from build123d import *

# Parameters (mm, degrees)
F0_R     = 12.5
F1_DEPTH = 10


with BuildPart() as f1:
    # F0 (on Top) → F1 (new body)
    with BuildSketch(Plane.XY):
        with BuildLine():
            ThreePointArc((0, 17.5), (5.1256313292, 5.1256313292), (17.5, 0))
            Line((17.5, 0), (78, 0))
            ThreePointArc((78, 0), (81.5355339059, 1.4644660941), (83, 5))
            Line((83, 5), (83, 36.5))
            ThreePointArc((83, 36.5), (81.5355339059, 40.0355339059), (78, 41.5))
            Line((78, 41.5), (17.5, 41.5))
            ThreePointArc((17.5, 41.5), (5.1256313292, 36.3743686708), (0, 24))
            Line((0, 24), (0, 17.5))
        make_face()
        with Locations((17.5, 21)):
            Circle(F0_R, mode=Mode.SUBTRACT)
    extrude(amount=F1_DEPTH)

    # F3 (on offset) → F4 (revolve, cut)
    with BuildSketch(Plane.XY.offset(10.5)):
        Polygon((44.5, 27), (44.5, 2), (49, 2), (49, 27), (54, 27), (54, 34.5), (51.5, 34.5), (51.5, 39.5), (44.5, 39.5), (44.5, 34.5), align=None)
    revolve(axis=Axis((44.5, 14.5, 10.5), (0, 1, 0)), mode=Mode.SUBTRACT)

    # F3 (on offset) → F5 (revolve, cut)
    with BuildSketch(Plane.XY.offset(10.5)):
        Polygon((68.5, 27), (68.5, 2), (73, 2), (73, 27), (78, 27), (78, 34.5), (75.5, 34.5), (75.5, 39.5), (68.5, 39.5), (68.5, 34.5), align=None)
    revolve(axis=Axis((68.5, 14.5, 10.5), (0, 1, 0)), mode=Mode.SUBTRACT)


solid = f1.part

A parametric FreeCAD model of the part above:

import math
import FreeCAD as App
import Part
import Sketcher
from FreeCAD import Vector
Q = App.Units.Quantity


def add_polygon(sketch, points):
    """Adds a closed chain of lines whose ends are joined by coincident constraints."""
    first, n = sketch.GeometryCount, len(points)
    for a, b in zip(points, points[1:] + points[:1]):
        sketch.addGeometry(Part.LineSegment(App.Vector(*a, 0), App.Vector(*b, 0)), False)
    for i in range(n):
        sketch.addConstraint(Sketcher.Constraint("Coincident", first + i, 2, first + (i + 1) % n, 1))

doc = App.newDocument("Part")
params = doc.addObject("Spreadsheet::Sheet", "Params")
for row, (alias, value) in enumerate([
    ("sketch1_diameter", "25 mm"),
    ("sketch1_radius", "5 mm"),
    ("sketch1_radius2", "17.5 mm"),
    ("sketch1_width", "60.5 mm"),
    ("sketch1_height", "31.5 mm"),
    ("pad1_length", "10 mm"),
    ("sketch2_width", "5 mm"),
    ("sketch2_width2", "7 mm"),
    ("sketch2_height", "25 mm"),
    ("sketch2_width3", "4.5 mm"),
    ("sketch2_height2", "7.5 mm"),
    ("groove_angle", "360 deg"),
    ("sketch3_width", "5 mm"),
    ("sketch3_width2", "7 mm"),
    ("sketch3_height", "25 mm"),
    ("sketch3_width3", "4.5 mm"),
    ("sketch3_height2", "7.5 mm"),
    ("groove2_angle", "360 deg"),
], start=1):
    params.set(f"A{row}", alias)
    params.set(f"B{row}", "=" + value)
    params.setAlias(f"B{row}", alias)

body = doc.addObject("PartDesign::Body", "Body")

# Sketch on XY plane
sketch1 = body.newObject("Sketcher::SketchObject", "Sketch")
sketch1.AttachmentSupport = (doc.getObject("XY_Plane"), [""])
sketch1.MapMode = "FlatFace"
sketch1.addGeometry(Part.ArcOfCircle(Part.Circle(Vector(18, 18, 0), Vector(0, 0, 1), 18), math.radians(180), math.radians(270)), False)
sketch1.addGeometry(Part.LineSegment(Vector(18, 0, 0), Vector(78, 0, 0)), False)
sketch1.addGeometry(Part.ArcOfCircle(Part.Circle(Vector(78, 5, 0), Vector(0, 0, 1), 5), math.radians(-90), math.radians(0)), False)
sketch1.addGeometry(Part.LineSegment(Vector(83, 5, 0), Vector(83, 36, 0)), False)
sketch1.addGeometry(Part.ArcOfCircle(Part.Circle(Vector(78, 36, 0), Vector(0, 0, 1), 5), math.radians(0), math.radians(90)), False)
sketch1.addGeometry(Part.LineSegment(Vector(78, 42, 0), Vector(18, 42, 0)), False)
sketch1.addGeometry(Part.ArcOfCircle(Part.Circle(Vector(18, 24, 0), Vector(0, 0, 1), 18), math.radians(90), math.radians(180)), False)
sketch1.addGeometry(Part.LineSegment(Vector(0, 24, 0), Vector(0, 18, 0)), False)
sketch1.addGeometry(Part.Circle(Vector(18, 21, 0), Vector(0, 0, 1), 12), False)
sketch1.addConstraint(Sketcher.Constraint("Tangent", 0, 2, 1, 1))
sketch1.addConstraint(Sketcher.Constraint("Tangent", 1, 2, 2, 1))
sketch1.addConstraint(Sketcher.Constraint("Tangent", 2, 2, 3, 1))
sketch1.addConstraint(Sketcher.Constraint("Tangent", 3, 2, 4, 1))
sketch1.addConstraint(Sketcher.Constraint("Tangent", 4, 2, 5, 1))
sketch1.addConstraint(Sketcher.Constraint("Tangent", 5, 2, 6, 1))
sketch1.addConstraint(Sketcher.Constraint("Tangent", 6, 2, 7, 1))
sketch1.addConstraint(Sketcher.Constraint("Tangent", 7, 2, 0, 1))
sketch1.addConstraint(Sketcher.Constraint("Horizontal", 1))
sketch1.addConstraint(Sketcher.Constraint("Vertical", 3))
sketch1.addConstraint(Sketcher.Constraint("Horizontal", 5))
sketch1.addConstraint(Sketcher.Constraint("Vertical", 7))
sketch1.addConstraint(Sketcher.Constraint("Equal", 2, 4))
sketch1.addConstraint(Sketcher.Constraint("Equal", 0, 6))
sketch1.addConstraint(Sketcher.Constraint("PointOnObject", 0, 2, -1))
sketch1.addConstraint(Sketcher.Constraint("PointOnObject", 6, 2, -2))
sketch1.addConstraint(Sketcher.Constraint("Vertical", 6, 3, 8, 3))
sketch1.addConstraint(Sketcher.Constraint("Diameter", 8, Q("25 mm")))
sketch1.addConstraint(Sketcher.Constraint("Radius", 2, Q("5 mm")))
sketch1.addConstraint(Sketcher.Constraint("Radius", 0, Q("17.5 mm")))
sketch1.addConstraint(Sketcher.Constraint("DistanceX", 1, 1, 1, 2, Q("60.5 mm")))
sketch1.addConstraint(Sketcher.Constraint("DistanceY", 3, 1, 3, 2, Q("31.5 mm")))
sketch1.addConstraint(Sketcher.Constraint("DistanceY", -1, 1, 8, 3, Q("21 mm")))
sketch1.setExpression("Constraints[17]", "Params.sketch1_diameter")
sketch1.setExpression("Constraints[18]", "Params.sketch1_radius")
sketch1.setExpression("Constraints[19]", "Params.sketch1_radius2")
sketch1.setExpression("Constraints[20]", "Params.sketch1_width")
sketch1.setExpression("Constraints[21]", "Params.sketch1_height")
pad1 = body.newObject("PartDesign::Pad", "Pad")
pad1.Profile = sketch1
pad1.setExpression("Length", "Params.pad1_length")

# Sketch on XY plane
sketch2 = body.newObject("Sketcher::SketchObject", "Sketch001")
sketch2.AttachmentSupport = (doc.getObject("XY_Plane"), [""])
sketch2.MapMode = "FlatFace"
sketch2.AttachmentOffset = App.Placement(Vector(0, 0, 10.5), App.Rotation())
add_polygon(sketch2, [(44.5, 2), (49, 2), (49, 27), (54, 27), (54, 34.5), (51.5, 34.5), (51.5, 39.5), (44.5, 39.5)])  # lines 0-7
sketch2.addGeometry(Part.LineSegment(Vector(44.5, 2, 0), Vector(44.5, 39.5, 0)), True)  # axis
sketch2.addConstraint(Sketcher.Constraint("Horizontal", 0))
sketch2.addConstraint(Sketcher.Constraint("Vertical", 1))
sketch2.addConstraint(Sketcher.Constraint("Horizontal", 2))
sketch2.addConstraint(Sketcher.Constraint("Vertical", 3))
sketch2.addConstraint(Sketcher.Constraint("Horizontal", 4))
sketch2.addConstraint(Sketcher.Constraint("Vertical", 5))
sketch2.addConstraint(Sketcher.Constraint("Horizontal", 6))
sketch2.addConstraint(Sketcher.Constraint("Vertical", 7))
sketch2.addConstraint(Sketcher.Constraint("Vertical", 8))
sketch2.addConstraint(Sketcher.Constraint("Coincident", 8, 1, 7, 2))
sketch2.addConstraint(Sketcher.Constraint("Horizontal", 5, 2, 8, 2))
sketch2.addConstraint(Sketcher.Constraint("Equal", 2, 5))
sketch2.addConstraint(Sketcher.Constraint("DistanceX", 2, 1, 2, 2, Q("5 mm")))
sketch2.addConstraint(Sketcher.Constraint("DistanceX", 6, 2, 6, 1, Q("7 mm")))
sketch2.addConstraint(Sketcher.Constraint("DistanceY", 1, 1, 1, 2, Q("25 mm")))
sketch2.addConstraint(Sketcher.Constraint("DistanceX", 0, 1, 0, 2, Q("4.5 mm")))
sketch2.addConstraint(Sketcher.Constraint("DistanceY", 3, 1, 3, 2, Q("7.5 mm")))
sketch2.addConstraint(Sketcher.Constraint("DistanceX", -1, 1, 0, 2, Q("49 mm")))
sketch2.addConstraint(Sketcher.Constraint("DistanceY", -1, 1, 0, 2, Q("2 mm")))
sketch2.setExpression("Constraints[20]", "Params.sketch2_width")
sketch2.setExpression("Constraints[21]", "Params.sketch2_width2")
sketch2.setExpression("Constraints[22]", "Params.sketch2_height")
sketch2.setExpression("Constraints[23]", "Params.sketch2_width3")
sketch2.setExpression("Constraints[24]", "Params.sketch2_height2")
groove = body.newObject("PartDesign::Groove", "Groove")
groove.Profile = sketch2
groove.ReferenceAxis = (sketch2, ["Axis0"])
groove.setExpression("Angle", "Params.groove_angle")

# Sketch on XY plane
sketch3 = body.newObject("Sketcher::SketchObject", "Sketch002")
sketch3.AttachmentSupport = (doc.getObject("XY_Plane"), [""])
sketch3.MapMode = "FlatFace"
sketch3.AttachmentOffset = App.Placement(Vector(0, 0, 10.5), App.Rotation())
add_polygon(sketch3, [(68.5, 2), (73, 2), (73, 27), (78, 27), (78, 34.5), (75.5, 34.5), (75.5, 39.5), (68.5, 39.5)])  # lines 0-7
sketch3.addGeometry(Part.LineSegment(Vector(68.5, 2, 0), Vector(68.5, 39.5, 0)), True)  # axis
sketch3.addConstraint(Sketcher.Constraint("Horizontal", 0))
sketch3.addConstraint(Sketcher.Constraint("Vertical", 1))
sketch3.addConstraint(Sketcher.Constraint("Horizontal", 2))
sketch3.addConstraint(Sketcher.Constraint("Vertical", 3))
sketch3.addConstraint(Sketcher.Constraint("Horizontal", 4))
sketch3.addConstraint(Sketcher.Constraint("Vertical", 5))
sketch3.addConstraint(Sketcher.Constraint("Horizontal", 6))
sketch3.addConstraint(Sketcher.Constraint("Vertical", 7))
sketch3.addConstraint(Sketcher.Constraint("Vertical", 8))
sketch3.addConstraint(Sketcher.Constraint("Coincident", 8, 1, 7, 2))
sketch3.addConstraint(Sketcher.Constraint("Horizontal", 5, 2, 8, 2))
sketch3.addConstraint(Sketcher.Constraint("Equal", 2, 5))
sketch3.addConstraint(Sketcher.Constraint("DistanceX", 2, 1, 2, 2, Q("5 mm")))
sketch3.addConstraint(Sketcher.Constraint("DistanceX", 6, 2, 6, 1, Q("7 mm")))
sketch3.addConstraint(Sketcher.Constraint("DistanceY", 1, 1, 1, 2, Q("25 mm")))
sketch3.addConstraint(Sketcher.Constraint("DistanceX", 0, 1, 0, 2, Q("4.5 mm")))
sketch3.addConstraint(Sketcher.Constraint("DistanceY", 3, 1, 3, 2, Q("7.5 mm")))
sketch3.addConstraint(Sketcher.Constraint("DistanceX", -1, 1, 0, 2, Q("73 mm")))
sketch3.addConstraint(Sketcher.Constraint("DistanceY", -1, 1, 0, 2, Q("2 mm")))
sketch3.setExpression("Constraints[20]", "Params.sketch3_width")
sketch3.setExpression("Constraints[21]", "Params.sketch3_width2")
sketch3.setExpression("Constraints[22]", "Params.sketch3_height")
sketch3.setExpression("Constraints[23]", "Params.sketch3_width3")
sketch3.setExpression("Constraints[24]", "Params.sketch3_height2")
groove2 = body.newObject("PartDesign::Groove", "Groove001")
groove2.Profile = sketch3
groove2.ReferenceAxis = (sketch3, ["Axis0"])
groove2.setExpression("Angle", "Params.groove2_angle")

doc.recompute()
